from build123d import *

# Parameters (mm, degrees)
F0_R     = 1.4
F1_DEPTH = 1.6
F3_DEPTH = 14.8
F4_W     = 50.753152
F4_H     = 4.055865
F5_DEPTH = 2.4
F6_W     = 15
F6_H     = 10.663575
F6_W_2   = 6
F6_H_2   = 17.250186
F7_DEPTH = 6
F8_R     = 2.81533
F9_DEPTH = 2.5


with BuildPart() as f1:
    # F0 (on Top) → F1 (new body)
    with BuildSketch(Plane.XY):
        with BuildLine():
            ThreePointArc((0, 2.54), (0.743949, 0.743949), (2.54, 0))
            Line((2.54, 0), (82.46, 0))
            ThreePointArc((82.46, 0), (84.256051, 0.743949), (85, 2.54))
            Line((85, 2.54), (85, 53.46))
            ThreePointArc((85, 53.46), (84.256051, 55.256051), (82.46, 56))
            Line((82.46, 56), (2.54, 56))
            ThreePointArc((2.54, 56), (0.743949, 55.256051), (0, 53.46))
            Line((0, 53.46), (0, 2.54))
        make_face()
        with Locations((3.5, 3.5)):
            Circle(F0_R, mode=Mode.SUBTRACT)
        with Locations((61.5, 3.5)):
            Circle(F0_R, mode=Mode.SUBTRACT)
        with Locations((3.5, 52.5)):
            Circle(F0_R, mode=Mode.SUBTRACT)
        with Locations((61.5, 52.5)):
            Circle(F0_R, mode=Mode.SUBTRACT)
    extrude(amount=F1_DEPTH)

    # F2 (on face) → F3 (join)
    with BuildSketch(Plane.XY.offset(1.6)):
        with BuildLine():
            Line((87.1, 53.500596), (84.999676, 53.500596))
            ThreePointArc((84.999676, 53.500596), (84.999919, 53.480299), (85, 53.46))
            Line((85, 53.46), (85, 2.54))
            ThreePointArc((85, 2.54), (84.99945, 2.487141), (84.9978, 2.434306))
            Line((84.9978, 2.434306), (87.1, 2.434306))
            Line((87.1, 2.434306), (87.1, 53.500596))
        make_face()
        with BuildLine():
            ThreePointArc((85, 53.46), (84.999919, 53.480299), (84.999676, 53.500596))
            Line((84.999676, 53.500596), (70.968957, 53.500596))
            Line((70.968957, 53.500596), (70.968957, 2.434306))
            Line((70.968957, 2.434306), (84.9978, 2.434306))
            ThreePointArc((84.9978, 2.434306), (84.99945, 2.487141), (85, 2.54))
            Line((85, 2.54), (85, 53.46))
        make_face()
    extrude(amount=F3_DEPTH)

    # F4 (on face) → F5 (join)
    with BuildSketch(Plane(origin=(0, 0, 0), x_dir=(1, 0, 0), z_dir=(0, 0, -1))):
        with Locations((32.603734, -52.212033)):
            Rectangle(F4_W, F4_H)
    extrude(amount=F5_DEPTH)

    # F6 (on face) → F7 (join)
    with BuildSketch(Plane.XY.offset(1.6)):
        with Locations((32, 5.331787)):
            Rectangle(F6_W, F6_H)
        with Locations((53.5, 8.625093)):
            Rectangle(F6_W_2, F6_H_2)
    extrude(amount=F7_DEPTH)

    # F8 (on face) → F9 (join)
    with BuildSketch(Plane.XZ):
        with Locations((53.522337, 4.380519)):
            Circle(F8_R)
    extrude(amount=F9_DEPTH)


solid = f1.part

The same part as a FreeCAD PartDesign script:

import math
import FreeCAD as App
import Part
import Sketcher

V = App.Vector

doc = App.newDocument("Part")
body = doc.addObject("PartDesign::Body", "Body")

# Sketch on XY plane
sketch1 = body.newObject("Sketcher::SketchObject", "Sketch")
sketch1.AttachmentSupport = (doc.getObject("XY_Plane"), [""])
sketch1.MapMode = "FlatFace"
sketch1.addGeometry([
    Part.ArcOfCircle(Part.Circle(V(2.540001, 2.540001, 0), V(0, 0, 1), 2.540001), math.radians(-179.999983), math.radians(-90.000017)),  # 0
    Part.LineSegment(V(2.54, 0, 0), V(82.46, 0, 0)),  # 1
    Part.ArcOfCircle(Part.Circle(V(82.459999, 2.540001, 0), V(0, 0, 1), 2.540001), math.radians(-89.999983), math.radians(-0.000017)),  # 2
    Part.LineSegment(V(85, 2.54, 0), V(85, 53.46, 0)),  # 3
    Part.ArcOfCircle(Part.Circle(V(82.459999, 53.459999, 0), V(0, 0, 1), 2.540001), math.radians(0.000017), math.radians(89.999983)),  # 4
    Part.LineSegment(V(82.46, 56, 0), V(2.54, 56, 0)),  # 5
    Part.ArcOfCircle(Part.Circle(V(2.540001, 53.459999, 0), V(0, 0, 1), 2.540001), math.radians(90.000017), math.radians(179.999983)),  # 6
    Part.LineSegment(V(0, 53.46, 0), V(0, 2.54, 0)),  # 7
    Part.Circle(V(3.5, 3.5, 0), V(0, 0, 1), 1.4),  # 8
    Part.Circle(V(61.5, 3.5, 0), V(0, 0, 1), 1.4),  # 9
    Part.Circle(V(3.5, 52.5, 0), V(0, 0, 1), 1.4),  # 10
    Part.Circle(V(61.5, 52.5, 0), V(0, 0, 1), 1.4),  # 11
], False)
sketch1.addConstraint([
    Sketcher.Constraint("Tangent", 0, 2, 1, 1),
    Sketcher.Constraint("Tangent", 1, 2, 2, 1),
    Sketcher.Constraint("Tangent", 2, 2, 3, 1),
    Sketcher.Constraint("Tangent", 3, 2, 4, 1),
    Sketcher.Constraint("Tangent", 4, 2, 5, 1),
    Sketcher.Constraint("Tangent", 5, 2, 6, 1),
    Sketcher.Constraint("Tangent", 6, 2, 7, 1),
    Sketcher.Constraint("Tangent", 7, 2, 0, 1),
    Sketcher.Constraint("Horizontal", 1),
    Sketcher.Constraint("Vertical", 3),
    Sketcher.Constraint("Horizontal", 5),
    Sketcher.Constraint("Vertical", 7),
    Sketcher.Constraint("Equal", 0, 2),
    Sketcher.Constraint("Equal", 2, 4),
    Sketcher.Constraint("Equal", 4, 6),
    Sketcher.Constraint("Equal", 8, 9),
    Sketcher.Constraint("Equal", 9, 10),
    Sketcher.Constraint("Equal", 10, 11),
    Sketcher.Constraint("PointOnObject", 0, 2, -1),
    Sketcher.Constraint("PointOnObject", 6, 2, -2),
    Sketcher.Constraint("Horizontal", 8, 3, 9, 3),
    Sketcher.Constraint("Horizontal", 10, 3, 11, 3),
    Sketcher.Constraint("Vertical", 8, 3, 10, 3),
    Sketcher.Constraint("Vertical", 9, 3, 11, 3),
    Sketcher.Constraint("Diameter", 8, 2.8),
    Sketcher.Constraint("Radius", 0, 2.540001),
    Sketcher.Constraint("DistanceX", -1, 1, 2, 2, 85.0),
    Sketcher.Constraint("DistanceY", -1, 1, 4, 2, 56.0),
    Sketcher.Constraint("DistanceX", 8, 3, 9, 3, 58.0),
    Sketcher.Constraint("DistanceY", 8, 3, 10, 3, 49.0),
    Sketcher.Constraint("DistanceX", -1, 1, 8, 3, 3.5),
    Sketcher.Constraint("DistanceY", -1, 1, 8, 3, 3.5),
])
pad1 = body.newObject("PartDesign::Pad", "Pad")
pad1.Profile = sketch1
pad1.Length = 1.6

# Sketch on XY plane
sketch2 = body.newObject("Sketcher::SketchObject", "Sketch001")
sketch2.AttachmentSupport = (doc.getObject("XY_Plane"), [""])
sketch2.MapMode = "FlatFace"
sketch2.AttachmentOffset = App.Placement(V(0, 0, 1.6), App.Rotation())
sketch2.addGeometry([
    Part.LineSegment(V(87.1, 53.500596, 0), V(70.968957, 53.500596, 0)),
    Part.LineSegment(V(70.968957, 53.500596, 0), V(70.968957, 2.434306, 0)),
    Part.LineSegment(V(70.968957, 2.434306, 0), V(87.1, 2.434306, 0)),
    Part.LineSegment(V(87.1, 2.434306, 0), V(87.1, 53.500596, 0)),
], False)
sketch2.addConstraint([
    Sketcher.Constraint("Coincident", 0, 2, 1, 1),
    Sketcher.Constraint("Coincident", 1, 2, 2, 1),
    Sketcher.Constraint("Coincident", 2, 2, 3, 1),
    Sketcher.Constraint("Coincident", 3, 2, 0, 1),
    Sketcher.Constraint("Horizontal", 0),
    Sketcher.Constraint("Vertical", 1),
    Sketcher.Constraint("Horizontal", 2),
    Sketcher.Constraint("Vertical", 3),
    Sketcher.Constraint("DistanceX", -1, 1, 2, 2, 87.1),
    Sketcher.Constraint("DistanceY", 1, 2, 1, 1, 51.06629),
    Sketcher.Constraint("DistanceX", 0, 2, 0, 1, 16.131043),
    Sketcher.Constraint("DistanceY", -1, 1, 0, 2, 53.500596),
])
pad2 = body.newObject("PartDesign::Pad", "Pad001")
pad2.Profile = sketch2
pad2.Length = 14.8

# Sketch on XY plane
sketch3 = body.newObject("Sketcher::SketchObject", "Sketch002")
sketch3.AttachmentSupport = (doc.getObject("XY_Plane"), [""])
sketch3.MapMode = "FlatFace"
sketch3.addGeometry([
    Part.LineSegment(V(7.227158, 50.1841, 0), V(7.227158, 54.239965, 0)),
    Part.LineSegment(V(7.227158, 54.239965, 0), V(57.98031, 54.239965, 0)),
    Part.LineSegment(V(57.98031, 54.239965, 0), V(57.98031, 50.1841, 0)),
    Part.LineSegment(V(57.98031, 50.1841, 0), V(7.227158, 50.1841, 0)),
], False)
sketch3.addConstraint([
    Sketcher.Constraint("Coincident", 0, 2, 1, 1),
    Sketcher.Constraint("Coincident", 1, 2, 2, 1),
    Sketcher.Constraint("Coincident", 2, 2, 3, 1),
    Sketcher.Constraint("Coincident", 3, 2, 0, 1),
    Sketcher.Constraint("Vertical", 0),
    Sketcher.Constraint("Horizontal", 1),
    Sketcher.Constraint("Vertical", 2),
    Sketcher.Constraint("Horizontal", 3),
    Sketcher.Constraint("DistanceY", -1, 1, 2, 2, 50.1841),
    Sketcher.Constraint("DistanceX", 1, 1, 1, 2, 50.753152),
    Sketcher.Constraint("DistanceY", 0, 1, 0, 2, 4.055865),
    Sketcher.Constraint("DistanceX", -1, 1, 0, 2, 7.227158),
])
pad3 = body.newObject("PartDesign::Pad", "Pad002")
pad3.Profile = sketch3
pad3.Length = 2.4
pad3.Reversed = True

# Sketch on XY plane
sketch4 = body.newObject("Sketcher::SketchObject", "Sketch003")
sketch4.AttachmentSupport = (doc.getObject("XY_Plane"), [""])
sketch4.MapMode = "FlatFace"
sketch4.AttachmentOffset = App.Placement(V(0, 0, 1.6), App.Rotation())
sketch4.addGeometry([
    Part.LineSegment(V(24.5, 10.663574, 0), V(24.5, 0, 0)),  # 0
    Part.LineSegment(V(24.5, 0, 0), V(39.5, 0, 0)),  # 1
    Part.LineSegment(V(39.5, 0, 0), V(39.5, 10.663574, 0)),  # 2
    Part.LineSegment(V(39.5, 10.663574, 0), V(24.5, 10.663574, 0)),  # 3
    Part.LineSegment(V(50.5, 17.250186, 0), V(50.5, 0, 0)),  # 4
    Part.LineSegment(V(50.5, 0, 0), V(56.5, 0, 0)),  # 5
    Part.LineSegment(V(56.5, 0, 0), V(56.5, 17.250186, 0)),  # 6
    Part.LineSegment(V(56.5, 17.250186, 0), V(50.5, 17.250186, 0)),  # 7
], False)
sketch4.addConstraint([
    Sketcher.Constraint("Coincident", 0, 2, 1, 1),
    Sketcher.Constraint("Coincident", 1, 2, 2, 1),
    Sketcher.Constraint("Coincident", 2, 2, 3, 1),
    Sketcher.Constraint("Coincident", 3, 2, 0, 1),
    Sketcher.Constraint("Coincident", 4, 2, 5, 1),
    Sketcher.Constraint("Coincident", 5, 2, 6, 1),
    Sketcher.Constraint("Coincident", 6, 2, 7, 1),
    Sketcher.Constraint("Coincident", 7, 2, 4, 1),
    Sketcher.Constraint("Vertical", 0),
    Sketcher.Constraint("Horizontal", 1),
    Sketcher.Constraint("Vertical", 2),
    Sketcher.Constraint("Horizontal", 3),
    Sketcher.Constraint("Vertical", 4),
    Sketcher.Constraint("Horizontal", 5),
    Sketcher.Constraint("Vertical", 6),
    Sketcher.Constraint("Horizontal", 7),
    Sketcher.Constraint("PointOnObject", 0, 2, -1),
    Sketcher.Constraint("PointOnObject", 4, 2, -1),
    Sketcher.Constraint("DistanceX", 1, 1, 1, 2, 15.0),
    Sketcher.Constraint("DistanceX", 5, 1, 5, 2, 6.0),
    Sketcher.Constraint("DistanceX", 1, 2, 4, 2, 11.0),
    Sketcher.Constraint("DistanceX", -1, 1, 0, 2, 24.5),
    Sketcher.Constraint("DistanceY", 0, 2, 0, 1, 10.663575),
    Sketcher.Constraint("DistanceY", 4, 2, 4, 1, 17.250186),
])
pad4 = body.newObject("PartDesign::Pad", "Pad003")
pad4.Profile = sketch4
pad4.Length = 6

# Sketch on XZ plane
sketch5 = body.newObject("Sketcher::SketchObject", "Sketch004")
sketch5.AttachmentSupport = (doc.getObject("XZ_Plane"), [""])
sketch5.MapMode = "FlatFace"
sketch5.addGeometry(Part.Circle(V(53.522337, 4.380519, 0), V(0, 0, 1), 2.81533), False)
sketch5.addConstraint([
    Sketcher.Constraint("Diameter", 0, 5.63066),
    Sketcher.Constraint("DistanceY", -1, 1, 0, 3, 4.380519),
    Sketcher.Constraint("DistanceX", -1, 1, 0, 3, 53.522337),
])
pad5 = body.newObject("PartDesign::Pad", "Pad004")
pad5.Profile = sketch5
pad5.Length = 2.5

doc.recompute()
